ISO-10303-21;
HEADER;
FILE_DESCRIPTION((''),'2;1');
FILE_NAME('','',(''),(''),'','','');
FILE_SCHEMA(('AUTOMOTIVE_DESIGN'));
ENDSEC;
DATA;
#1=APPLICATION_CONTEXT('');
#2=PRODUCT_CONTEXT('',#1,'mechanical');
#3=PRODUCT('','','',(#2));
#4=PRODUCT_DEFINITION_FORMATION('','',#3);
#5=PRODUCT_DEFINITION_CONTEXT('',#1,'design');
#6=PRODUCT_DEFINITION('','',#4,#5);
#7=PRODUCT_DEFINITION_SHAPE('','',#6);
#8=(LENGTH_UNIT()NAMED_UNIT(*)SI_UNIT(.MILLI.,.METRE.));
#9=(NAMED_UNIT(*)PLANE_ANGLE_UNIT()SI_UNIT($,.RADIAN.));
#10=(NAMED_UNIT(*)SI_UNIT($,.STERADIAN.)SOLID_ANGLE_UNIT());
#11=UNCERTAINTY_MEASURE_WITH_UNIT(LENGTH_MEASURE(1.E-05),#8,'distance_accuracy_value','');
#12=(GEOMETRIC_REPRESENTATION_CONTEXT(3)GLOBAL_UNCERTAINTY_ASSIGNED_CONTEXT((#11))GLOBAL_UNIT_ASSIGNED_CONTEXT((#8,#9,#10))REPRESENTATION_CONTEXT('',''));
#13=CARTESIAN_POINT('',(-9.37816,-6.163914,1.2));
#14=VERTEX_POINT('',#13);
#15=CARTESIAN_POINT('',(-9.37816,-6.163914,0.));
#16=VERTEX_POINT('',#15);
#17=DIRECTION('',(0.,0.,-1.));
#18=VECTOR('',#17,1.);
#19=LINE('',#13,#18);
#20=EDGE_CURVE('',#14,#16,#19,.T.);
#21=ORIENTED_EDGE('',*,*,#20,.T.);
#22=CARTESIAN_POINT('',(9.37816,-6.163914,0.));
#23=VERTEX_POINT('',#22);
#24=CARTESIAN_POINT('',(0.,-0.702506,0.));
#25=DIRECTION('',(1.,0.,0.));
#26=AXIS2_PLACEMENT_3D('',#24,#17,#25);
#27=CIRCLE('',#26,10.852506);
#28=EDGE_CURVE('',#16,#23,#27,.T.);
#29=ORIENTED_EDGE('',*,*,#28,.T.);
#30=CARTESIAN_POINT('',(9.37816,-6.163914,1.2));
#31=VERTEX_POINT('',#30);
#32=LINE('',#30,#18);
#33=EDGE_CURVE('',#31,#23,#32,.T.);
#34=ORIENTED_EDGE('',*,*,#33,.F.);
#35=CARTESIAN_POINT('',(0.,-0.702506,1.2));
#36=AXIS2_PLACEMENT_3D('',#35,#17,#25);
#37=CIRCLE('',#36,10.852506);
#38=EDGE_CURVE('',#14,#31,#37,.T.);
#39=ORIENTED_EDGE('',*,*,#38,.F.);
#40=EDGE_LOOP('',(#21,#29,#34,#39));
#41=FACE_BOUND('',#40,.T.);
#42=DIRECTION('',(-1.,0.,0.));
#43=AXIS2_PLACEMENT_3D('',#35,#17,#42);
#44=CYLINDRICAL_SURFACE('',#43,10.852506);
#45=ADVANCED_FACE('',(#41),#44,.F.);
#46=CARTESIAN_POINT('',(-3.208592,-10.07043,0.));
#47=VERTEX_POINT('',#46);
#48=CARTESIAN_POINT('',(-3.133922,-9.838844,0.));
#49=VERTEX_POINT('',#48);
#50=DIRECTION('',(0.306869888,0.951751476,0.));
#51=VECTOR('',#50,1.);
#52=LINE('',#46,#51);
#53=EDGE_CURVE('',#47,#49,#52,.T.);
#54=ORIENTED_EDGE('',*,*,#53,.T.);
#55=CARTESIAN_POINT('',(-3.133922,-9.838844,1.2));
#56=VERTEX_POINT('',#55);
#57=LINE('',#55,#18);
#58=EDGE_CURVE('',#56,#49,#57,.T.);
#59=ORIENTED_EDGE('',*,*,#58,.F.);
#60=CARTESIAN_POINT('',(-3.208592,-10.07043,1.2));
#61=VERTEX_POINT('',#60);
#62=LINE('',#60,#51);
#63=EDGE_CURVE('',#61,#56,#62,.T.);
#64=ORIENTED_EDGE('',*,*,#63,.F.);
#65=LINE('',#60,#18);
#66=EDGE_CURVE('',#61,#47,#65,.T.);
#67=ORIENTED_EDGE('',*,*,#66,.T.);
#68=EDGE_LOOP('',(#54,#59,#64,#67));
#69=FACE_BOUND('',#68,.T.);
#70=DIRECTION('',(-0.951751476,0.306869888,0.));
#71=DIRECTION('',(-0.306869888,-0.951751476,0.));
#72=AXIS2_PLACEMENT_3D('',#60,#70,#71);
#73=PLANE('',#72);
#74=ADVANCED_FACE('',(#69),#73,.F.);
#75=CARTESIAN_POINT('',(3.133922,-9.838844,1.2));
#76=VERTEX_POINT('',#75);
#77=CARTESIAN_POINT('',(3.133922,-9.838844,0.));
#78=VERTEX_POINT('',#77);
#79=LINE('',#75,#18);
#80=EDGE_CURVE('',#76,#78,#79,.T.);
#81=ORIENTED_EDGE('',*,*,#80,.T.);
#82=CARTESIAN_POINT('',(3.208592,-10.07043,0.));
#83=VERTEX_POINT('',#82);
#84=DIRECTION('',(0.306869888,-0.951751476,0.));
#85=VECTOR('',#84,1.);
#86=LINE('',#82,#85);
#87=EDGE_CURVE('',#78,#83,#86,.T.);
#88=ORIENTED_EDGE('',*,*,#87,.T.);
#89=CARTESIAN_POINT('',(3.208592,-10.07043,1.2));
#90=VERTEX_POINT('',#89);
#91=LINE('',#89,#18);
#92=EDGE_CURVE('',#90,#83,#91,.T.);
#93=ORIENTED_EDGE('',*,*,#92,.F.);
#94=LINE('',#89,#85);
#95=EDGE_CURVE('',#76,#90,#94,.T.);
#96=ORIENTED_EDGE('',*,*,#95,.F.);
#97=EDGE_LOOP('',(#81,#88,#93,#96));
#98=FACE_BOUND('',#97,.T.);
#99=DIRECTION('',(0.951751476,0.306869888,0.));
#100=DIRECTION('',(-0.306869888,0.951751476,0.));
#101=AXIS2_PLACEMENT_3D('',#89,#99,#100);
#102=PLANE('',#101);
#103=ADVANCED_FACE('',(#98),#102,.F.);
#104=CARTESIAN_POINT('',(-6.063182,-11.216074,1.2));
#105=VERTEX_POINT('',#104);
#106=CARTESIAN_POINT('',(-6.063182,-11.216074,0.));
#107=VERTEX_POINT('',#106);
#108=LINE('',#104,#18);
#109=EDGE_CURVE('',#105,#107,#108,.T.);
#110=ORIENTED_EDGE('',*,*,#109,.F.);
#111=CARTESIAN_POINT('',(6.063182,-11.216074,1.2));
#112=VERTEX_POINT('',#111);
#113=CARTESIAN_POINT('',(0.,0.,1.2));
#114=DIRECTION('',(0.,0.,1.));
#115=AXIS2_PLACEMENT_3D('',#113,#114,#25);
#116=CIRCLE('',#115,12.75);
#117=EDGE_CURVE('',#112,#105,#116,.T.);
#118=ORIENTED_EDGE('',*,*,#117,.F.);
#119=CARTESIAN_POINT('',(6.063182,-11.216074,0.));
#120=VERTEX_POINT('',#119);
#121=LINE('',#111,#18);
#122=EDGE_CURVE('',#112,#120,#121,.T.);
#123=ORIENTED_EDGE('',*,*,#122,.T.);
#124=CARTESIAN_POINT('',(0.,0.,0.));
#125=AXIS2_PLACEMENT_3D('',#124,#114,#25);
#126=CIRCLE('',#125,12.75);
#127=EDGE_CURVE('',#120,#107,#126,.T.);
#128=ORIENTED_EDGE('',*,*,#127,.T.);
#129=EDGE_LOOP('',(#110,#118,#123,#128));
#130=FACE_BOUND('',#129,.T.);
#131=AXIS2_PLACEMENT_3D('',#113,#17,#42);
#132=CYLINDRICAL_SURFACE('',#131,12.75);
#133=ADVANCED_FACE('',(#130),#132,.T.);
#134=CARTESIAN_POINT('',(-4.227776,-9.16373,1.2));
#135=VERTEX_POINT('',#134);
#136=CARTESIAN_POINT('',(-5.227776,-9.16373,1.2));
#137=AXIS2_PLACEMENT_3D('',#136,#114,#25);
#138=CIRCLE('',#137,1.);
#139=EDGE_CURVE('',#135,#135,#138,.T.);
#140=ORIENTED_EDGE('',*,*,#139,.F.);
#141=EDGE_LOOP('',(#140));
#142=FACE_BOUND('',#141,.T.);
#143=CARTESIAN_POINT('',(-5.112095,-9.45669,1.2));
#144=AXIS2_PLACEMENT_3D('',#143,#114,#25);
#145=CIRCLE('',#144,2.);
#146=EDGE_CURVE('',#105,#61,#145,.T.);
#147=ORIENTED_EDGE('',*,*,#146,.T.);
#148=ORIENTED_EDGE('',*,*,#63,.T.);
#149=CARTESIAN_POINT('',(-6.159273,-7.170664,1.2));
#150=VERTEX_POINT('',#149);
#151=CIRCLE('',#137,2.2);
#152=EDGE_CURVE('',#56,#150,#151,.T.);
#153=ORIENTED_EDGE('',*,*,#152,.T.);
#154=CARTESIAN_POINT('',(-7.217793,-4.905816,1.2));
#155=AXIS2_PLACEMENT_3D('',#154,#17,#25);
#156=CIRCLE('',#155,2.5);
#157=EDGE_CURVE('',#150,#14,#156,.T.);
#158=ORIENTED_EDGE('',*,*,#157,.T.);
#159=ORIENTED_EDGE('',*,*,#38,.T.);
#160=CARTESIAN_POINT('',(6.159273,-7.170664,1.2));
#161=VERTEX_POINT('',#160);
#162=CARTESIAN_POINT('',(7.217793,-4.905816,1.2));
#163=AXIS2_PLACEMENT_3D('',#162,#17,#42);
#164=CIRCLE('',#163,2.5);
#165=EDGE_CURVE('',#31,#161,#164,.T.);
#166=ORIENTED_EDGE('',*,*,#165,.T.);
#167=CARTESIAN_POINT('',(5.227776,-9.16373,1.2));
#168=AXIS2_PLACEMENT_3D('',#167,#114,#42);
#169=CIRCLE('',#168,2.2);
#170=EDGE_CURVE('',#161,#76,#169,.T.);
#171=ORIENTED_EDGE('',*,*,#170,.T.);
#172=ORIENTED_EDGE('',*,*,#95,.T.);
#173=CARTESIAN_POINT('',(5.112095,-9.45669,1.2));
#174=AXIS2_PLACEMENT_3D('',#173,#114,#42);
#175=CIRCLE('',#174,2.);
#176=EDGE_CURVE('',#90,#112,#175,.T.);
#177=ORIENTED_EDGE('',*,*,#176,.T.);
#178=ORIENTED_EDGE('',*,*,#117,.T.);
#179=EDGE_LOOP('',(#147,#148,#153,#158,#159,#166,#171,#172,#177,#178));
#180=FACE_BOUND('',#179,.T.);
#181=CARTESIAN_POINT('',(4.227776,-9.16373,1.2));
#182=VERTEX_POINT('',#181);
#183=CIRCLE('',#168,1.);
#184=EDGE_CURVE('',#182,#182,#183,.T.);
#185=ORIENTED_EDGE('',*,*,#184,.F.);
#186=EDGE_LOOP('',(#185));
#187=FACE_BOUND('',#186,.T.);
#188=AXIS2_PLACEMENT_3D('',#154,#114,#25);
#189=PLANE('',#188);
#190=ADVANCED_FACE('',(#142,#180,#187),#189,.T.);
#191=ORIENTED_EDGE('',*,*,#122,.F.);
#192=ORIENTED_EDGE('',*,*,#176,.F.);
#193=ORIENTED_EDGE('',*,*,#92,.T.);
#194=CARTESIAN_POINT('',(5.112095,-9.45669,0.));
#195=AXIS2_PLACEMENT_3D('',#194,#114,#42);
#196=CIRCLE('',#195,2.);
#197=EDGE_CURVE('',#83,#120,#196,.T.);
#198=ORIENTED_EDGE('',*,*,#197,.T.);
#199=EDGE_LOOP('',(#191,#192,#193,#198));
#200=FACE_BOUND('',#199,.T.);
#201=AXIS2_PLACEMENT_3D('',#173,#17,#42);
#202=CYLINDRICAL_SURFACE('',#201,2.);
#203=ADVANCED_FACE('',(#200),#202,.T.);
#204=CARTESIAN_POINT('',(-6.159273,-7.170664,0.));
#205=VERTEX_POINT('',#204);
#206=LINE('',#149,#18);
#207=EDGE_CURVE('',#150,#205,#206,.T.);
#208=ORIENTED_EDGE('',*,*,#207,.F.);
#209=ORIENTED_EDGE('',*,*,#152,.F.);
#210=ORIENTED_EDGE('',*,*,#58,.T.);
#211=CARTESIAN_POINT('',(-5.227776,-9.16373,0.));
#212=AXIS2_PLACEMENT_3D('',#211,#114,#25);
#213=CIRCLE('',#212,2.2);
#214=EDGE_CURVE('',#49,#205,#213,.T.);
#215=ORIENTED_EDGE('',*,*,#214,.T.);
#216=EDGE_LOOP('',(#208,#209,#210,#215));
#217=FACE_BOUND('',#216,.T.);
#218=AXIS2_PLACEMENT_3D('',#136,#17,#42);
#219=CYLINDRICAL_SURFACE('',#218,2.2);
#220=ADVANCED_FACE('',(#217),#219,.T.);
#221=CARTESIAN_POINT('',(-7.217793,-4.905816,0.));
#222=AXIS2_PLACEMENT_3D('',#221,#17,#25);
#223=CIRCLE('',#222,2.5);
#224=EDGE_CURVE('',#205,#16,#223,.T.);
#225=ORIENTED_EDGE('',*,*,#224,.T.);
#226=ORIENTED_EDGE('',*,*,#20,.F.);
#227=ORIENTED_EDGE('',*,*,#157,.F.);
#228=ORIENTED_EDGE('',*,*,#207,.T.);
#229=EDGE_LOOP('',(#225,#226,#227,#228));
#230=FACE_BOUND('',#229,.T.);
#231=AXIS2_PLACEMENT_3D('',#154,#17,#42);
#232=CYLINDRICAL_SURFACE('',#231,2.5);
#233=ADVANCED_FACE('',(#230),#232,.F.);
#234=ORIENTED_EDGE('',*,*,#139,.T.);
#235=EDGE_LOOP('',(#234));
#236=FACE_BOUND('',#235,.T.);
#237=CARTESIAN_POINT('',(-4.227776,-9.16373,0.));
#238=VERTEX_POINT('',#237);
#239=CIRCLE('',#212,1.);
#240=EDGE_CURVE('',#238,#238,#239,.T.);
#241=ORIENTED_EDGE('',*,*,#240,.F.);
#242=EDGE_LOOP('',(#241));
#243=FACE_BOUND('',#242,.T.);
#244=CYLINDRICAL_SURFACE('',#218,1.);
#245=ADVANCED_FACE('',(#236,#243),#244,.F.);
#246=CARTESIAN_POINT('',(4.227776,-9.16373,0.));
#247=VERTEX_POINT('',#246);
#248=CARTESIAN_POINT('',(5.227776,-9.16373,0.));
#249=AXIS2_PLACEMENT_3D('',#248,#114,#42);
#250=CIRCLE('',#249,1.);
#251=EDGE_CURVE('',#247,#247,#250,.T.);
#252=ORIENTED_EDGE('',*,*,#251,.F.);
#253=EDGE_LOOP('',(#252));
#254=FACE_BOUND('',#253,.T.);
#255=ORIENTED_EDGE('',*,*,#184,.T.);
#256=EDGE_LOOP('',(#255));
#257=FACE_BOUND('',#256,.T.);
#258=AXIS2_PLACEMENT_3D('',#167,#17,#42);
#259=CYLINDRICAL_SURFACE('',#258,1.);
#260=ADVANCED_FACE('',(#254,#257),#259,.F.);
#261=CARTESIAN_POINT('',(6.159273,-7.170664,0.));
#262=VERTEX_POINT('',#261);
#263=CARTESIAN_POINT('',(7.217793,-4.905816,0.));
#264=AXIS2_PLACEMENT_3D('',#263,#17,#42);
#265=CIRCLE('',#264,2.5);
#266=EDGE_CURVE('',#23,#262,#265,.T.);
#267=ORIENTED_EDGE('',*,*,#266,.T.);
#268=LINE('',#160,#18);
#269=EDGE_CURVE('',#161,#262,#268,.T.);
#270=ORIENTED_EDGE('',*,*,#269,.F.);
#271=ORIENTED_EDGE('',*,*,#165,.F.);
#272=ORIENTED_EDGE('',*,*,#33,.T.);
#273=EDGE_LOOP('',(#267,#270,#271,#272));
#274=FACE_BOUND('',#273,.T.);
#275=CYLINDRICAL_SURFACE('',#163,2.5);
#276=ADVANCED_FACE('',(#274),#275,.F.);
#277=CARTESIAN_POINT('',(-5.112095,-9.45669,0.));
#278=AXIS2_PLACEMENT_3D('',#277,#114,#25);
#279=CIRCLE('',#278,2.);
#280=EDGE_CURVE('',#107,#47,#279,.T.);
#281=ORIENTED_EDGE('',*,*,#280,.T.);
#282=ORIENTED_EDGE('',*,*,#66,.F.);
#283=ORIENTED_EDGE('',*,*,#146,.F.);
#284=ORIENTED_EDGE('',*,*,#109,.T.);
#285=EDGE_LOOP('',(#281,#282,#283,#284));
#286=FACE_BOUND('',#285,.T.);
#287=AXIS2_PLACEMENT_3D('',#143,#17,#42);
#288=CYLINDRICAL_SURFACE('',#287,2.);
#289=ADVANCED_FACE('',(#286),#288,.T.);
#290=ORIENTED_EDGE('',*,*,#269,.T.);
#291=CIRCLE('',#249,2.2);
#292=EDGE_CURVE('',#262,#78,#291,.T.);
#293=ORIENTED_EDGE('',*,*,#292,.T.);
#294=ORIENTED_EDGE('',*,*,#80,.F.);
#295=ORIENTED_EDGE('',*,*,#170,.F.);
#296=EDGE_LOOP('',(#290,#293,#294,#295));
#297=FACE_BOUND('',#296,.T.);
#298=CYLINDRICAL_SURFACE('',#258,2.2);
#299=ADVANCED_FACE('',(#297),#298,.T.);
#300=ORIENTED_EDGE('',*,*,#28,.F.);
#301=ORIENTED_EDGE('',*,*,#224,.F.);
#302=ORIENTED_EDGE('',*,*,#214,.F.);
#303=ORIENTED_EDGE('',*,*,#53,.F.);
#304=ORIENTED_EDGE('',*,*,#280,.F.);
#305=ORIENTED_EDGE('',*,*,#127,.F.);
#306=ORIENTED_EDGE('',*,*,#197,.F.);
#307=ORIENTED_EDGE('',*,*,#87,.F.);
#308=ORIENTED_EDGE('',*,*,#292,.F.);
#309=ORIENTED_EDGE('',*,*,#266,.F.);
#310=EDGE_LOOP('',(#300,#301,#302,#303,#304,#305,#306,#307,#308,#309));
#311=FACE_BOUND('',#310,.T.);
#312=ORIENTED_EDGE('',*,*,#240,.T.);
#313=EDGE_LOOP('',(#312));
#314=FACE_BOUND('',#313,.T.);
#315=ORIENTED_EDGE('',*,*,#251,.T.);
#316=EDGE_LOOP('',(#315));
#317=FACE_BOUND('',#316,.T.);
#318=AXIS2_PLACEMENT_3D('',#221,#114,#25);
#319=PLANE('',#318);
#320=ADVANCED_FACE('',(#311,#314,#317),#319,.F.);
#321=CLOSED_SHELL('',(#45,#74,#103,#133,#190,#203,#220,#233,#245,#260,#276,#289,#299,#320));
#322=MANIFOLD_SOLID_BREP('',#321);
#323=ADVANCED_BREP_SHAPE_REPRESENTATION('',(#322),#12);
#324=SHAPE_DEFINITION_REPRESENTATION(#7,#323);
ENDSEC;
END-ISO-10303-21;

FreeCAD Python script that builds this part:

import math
import FreeCAD as App
import Part
import Sketcher

V = App.Vector

doc = App.newDocument("Part")
body = doc.addObject("PartDesign::Body", "Body")

# Sketch on XY plane
sketch1 = body.newObject("Sketcher::SketchObject", "Sketch")
sketch1.AttachmentSupport = (doc.getObject("XY_Plane"), [""])
sketch1.MapMode = "FlatFace"
sketch1.addGeometry(Part.LineSegment(V(-3.208592, -10.07043, 0), V(-3.133922, -9.838844, 0)), False)
sketch1.addGeometry(Part.ArcOfCircle(Part.Circle(V(-5.227776, -9.16373, 0), V(0, 0, 1), 2.2), math.radians(-17.870696), math.radians(115.049931)), False)
sketch1.addGeometry(Part.ArcOfCircle(Part.Circle(V(-7.217793, -4.905816, 0), V(0, 0, 1), 2.5), math.radians(-149.785447), math.radians(-64.950069)), False)
sketch1.addGeometry(Part.ArcOfCircle(Part.Circle(V(0, -0.702506, 0), V(0, 0, 1), 10.852506), math.radians(-30.214553), math.radians(210.214553)), False)
sketch1.addGeometry(Part.ArcOfCircle(Part.Circle(V(7.217793, -4.905816, 0), V(0, 0, 1), 2.5), math.radians(-115.049931), math.radians(-30.214553)), False)
sketch1.addGeometry(Part.ArcOfCircle(Part.Circle(V(5.227776, -9.16373, 0), V(0, 0, 1), 2.2), math.radians(64.950069), math.radians(197.870696)), False)
sketch1.addGeometry(Part.LineSegment(V(3.133922, -9.838844, 0), V(3.208592, -10.07043, 0)), False)
sketch1.addGeometry(Part.ArcOfCircle(Part.Circle(V(5.112095, -9.45669, 0), V(0, 0, 1), 2), math.radians(-162.129304), math.radians(-61.605244)), False)
sketch1.addGeometry(Part.ArcOfCircle(Part.Circle(V(0, 0, 0), V(0, 0, 1), 12.75), math.radians(-61.605244), math.radians(241.605244)), False)
sketch1.addGeometry(Part.ArcOfCircle(Part.Circle(V(-5.112095, -9.45669, 0), V(0, 0, 1), 2), math.radians(-118.394756), math.radians(-17.870696)), False)
sketch1.addGeometry(Part.Circle(V(-5.227776, -9.16373, 0), V(0, 0, 1), 1), False)
sketch1.addGeometry(Part.Circle(V(5.227776, -9.16373, 0), V(0, 0, 1), 1), False)
sketch1.addConstraint(Sketcher.Constraint("Tangent", 0, 2, 1, 1))
sketch1.addConstraint(Sketcher.Constraint("Tangent", 1, 2, 2, 2))
sketch1.addConstraint(Sketcher.Constraint("Tangent", 2, 1, 3, 2))
sketch1.addConstraint(Sketcher.Constraint("Tangent", 3, 1, 4, 2))
sketch1.addConstraint(Sketcher.Constraint("Tangent", 4, 1, 5, 1))
sketch1.addConstraint(Sketcher.Constraint("Tangent", 5, 2, 6, 1))
sketch1.addConstraint(Sketcher.Constraint("Tangent", 6, 2, 7, 1))
sketch1.addConstraint(Sketcher.Constraint("Tangent", 7, 2, 8, 1))
sketch1.addConstraint(Sketcher.Constraint("Tangent", 8, 2, 9, 1))
sketch1.addConstraint(Sketcher.Constraint("Tangent", 9, 2, 0, 1))
sketch1.addConstraint(Sketcher.Constraint("Coincident", 8, 3, -1, 1))
sketch1.addConstraint(Sketcher.Constraint("Coincident", 10, 3, 1, 3))
sketch1.addConstraint(Sketcher.Constraint("Coincident", 11, 3, 5, 3))
sketch1.addConstraint(Sketcher.Constraint("Equal", 2, 4))
sketch1.addConstraint(Sketcher.Constraint("Equal", 1, 5))
sketch1.addConstraint(Sketcher.Constraint("Equal", 7, 9))
sketch1.addConstraint(Sketcher.Constraint("Equal", 10, 11))
sketch1.addConstraint(Sketcher.Constraint("Symmetric", 2, 3, 4, 3, -2))
sketch1.addConstraint(Sketcher.Constraint("Symmetric", 0, 2, 5, 2, -2))
sketch1.addConstraint(Sketcher.Constraint("Diameter", 10, 2.0))
sketch1.addConstraint(Sketcher.Constraint("Radius", 7, 2.0))
sketch1.addConstraint(Sketcher.Constraint("Radius", 1, 2.2))
sketch1.addConstraint(Sketcher.Constraint("Radius", 2, 2.5))
sketch1.addConstraint(Sketcher.Constraint("Radius", 8, 12.75))
sketch1.addConstraint(Sketcher.Constraint("Radius", 3, 10.852506))
sketch1.addConstraint(Sketcher.Constraint("DistanceY", 2, 1, 2, 3, 1.258099))
sketch1.addConstraint(Sketcher.Constraint("DistanceY", 6, 2, 5, 3, 0.9067))
sketch1.addConstraint(Sketcher.Constraint("DistanceY", 1, 3, -1, 1, 9.16373))
sketch1.addConstraint(Sketcher.Constraint("DistanceY", 7, 3, -1, 1, 9.45669))
pad1 = body.newObject("PartDesign::Pad", "Pad")
pad1.Profile = sketch1
pad1.Length = 1.2

doc.recompute()
